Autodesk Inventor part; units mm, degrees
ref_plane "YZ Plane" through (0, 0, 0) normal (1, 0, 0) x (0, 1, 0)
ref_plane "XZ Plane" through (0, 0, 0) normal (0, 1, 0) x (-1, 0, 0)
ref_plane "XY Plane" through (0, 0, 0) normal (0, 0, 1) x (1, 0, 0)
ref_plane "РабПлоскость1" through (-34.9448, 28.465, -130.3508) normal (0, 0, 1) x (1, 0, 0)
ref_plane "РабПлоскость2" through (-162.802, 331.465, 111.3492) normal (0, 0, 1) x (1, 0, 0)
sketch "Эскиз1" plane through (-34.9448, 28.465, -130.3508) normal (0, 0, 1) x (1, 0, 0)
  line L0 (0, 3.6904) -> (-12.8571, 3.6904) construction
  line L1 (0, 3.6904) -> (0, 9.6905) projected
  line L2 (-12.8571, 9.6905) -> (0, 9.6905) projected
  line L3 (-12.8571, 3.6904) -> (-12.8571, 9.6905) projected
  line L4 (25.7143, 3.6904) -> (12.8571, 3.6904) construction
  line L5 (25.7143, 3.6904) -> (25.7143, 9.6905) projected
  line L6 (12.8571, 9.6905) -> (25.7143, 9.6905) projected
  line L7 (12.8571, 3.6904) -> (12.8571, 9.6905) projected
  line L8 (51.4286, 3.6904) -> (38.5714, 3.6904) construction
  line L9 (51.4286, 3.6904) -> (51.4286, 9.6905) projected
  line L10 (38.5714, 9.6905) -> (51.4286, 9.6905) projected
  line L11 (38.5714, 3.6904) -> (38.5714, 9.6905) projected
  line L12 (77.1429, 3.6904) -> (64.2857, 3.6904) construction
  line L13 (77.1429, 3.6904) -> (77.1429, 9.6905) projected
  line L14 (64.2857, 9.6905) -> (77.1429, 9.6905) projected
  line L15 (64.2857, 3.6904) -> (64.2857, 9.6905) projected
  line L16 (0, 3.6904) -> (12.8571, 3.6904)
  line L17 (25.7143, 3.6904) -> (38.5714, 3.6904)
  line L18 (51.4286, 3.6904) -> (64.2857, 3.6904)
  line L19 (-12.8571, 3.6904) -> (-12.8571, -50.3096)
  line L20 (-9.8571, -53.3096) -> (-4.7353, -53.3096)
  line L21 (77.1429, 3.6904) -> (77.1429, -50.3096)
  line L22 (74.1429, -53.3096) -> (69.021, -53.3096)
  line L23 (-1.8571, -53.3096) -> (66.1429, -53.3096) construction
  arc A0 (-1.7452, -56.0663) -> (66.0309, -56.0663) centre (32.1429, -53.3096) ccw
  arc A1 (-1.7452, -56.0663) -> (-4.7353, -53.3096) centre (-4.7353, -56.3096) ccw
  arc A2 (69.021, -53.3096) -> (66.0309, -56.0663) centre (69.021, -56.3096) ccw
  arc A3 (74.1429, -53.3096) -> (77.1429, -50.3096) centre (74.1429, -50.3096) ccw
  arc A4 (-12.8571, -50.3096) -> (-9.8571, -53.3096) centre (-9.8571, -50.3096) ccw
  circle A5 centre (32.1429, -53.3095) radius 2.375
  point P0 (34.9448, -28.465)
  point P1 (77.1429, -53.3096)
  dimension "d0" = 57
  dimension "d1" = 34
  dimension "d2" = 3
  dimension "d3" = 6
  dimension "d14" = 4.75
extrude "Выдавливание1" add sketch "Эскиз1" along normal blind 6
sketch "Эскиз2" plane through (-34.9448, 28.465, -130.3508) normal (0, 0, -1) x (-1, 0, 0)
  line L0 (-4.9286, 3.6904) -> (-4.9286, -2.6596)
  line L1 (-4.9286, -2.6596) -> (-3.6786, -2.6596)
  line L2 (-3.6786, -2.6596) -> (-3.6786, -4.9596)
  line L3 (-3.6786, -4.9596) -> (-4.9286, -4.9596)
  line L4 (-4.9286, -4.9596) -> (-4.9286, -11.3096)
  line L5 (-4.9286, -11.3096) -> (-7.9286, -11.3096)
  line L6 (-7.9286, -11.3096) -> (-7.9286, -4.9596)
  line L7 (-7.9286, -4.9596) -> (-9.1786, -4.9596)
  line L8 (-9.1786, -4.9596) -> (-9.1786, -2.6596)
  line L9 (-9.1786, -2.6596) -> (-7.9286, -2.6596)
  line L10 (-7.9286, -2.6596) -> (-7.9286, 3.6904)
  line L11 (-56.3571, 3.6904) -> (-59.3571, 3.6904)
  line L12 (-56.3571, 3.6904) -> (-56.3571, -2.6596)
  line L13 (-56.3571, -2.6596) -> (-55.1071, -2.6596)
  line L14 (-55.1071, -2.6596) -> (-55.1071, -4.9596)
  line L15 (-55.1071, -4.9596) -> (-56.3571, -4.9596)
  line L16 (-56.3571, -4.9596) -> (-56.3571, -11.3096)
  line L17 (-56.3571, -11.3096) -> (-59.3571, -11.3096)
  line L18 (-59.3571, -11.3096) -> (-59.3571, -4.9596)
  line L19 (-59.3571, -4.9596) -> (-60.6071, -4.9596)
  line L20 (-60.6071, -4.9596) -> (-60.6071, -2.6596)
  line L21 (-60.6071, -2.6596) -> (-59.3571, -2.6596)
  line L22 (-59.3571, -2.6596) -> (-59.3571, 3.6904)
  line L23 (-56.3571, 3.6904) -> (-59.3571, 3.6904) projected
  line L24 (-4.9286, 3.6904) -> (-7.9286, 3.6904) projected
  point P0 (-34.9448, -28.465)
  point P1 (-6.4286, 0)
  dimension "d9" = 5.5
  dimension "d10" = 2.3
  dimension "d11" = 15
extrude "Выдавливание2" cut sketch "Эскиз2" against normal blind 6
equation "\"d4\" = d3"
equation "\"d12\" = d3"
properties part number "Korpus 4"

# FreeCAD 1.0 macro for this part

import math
import FreeCAD as App
import Part
import Sketcher

V = App.Vector
Q = App.Units.Quantity


def add_polygon(sketch, points):
    """Adds a closed chain of lines whose ends are joined by coincident constraints."""
    first, n = sketch.GeometryCount, len(points)
    for a, b in zip(points, points[1:] + points[:1]):
        sketch.addGeometry(Part.LineSegment(App.Vector(*a, 0), App.Vector(*b, 0)), False)
    for i in range(n):
        sketch.addConstraint(Sketcher.Constraint("Coincident", first + i, 2, first + (i + 1) % n, 1))

doc = App.newDocument("Part")
body = doc.addObject("PartDesign::Body", "Body")

# Sketch on XY plane
sketch1 = body.newObject("Sketcher::SketchObject", "Sketch")
sketch1.AttachmentSupport = (doc.getObject("XY_Plane"), [""])
sketch1.MapMode = "FlatFace"
sketch1.AttachmentOffset = App.Placement(V(0, 0, -130.3508), App.Rotation())
sketch1.addGeometry([
    Part.LineSegment(V(-22.1, 32.2, 0), V(-34.9, 32.2, 0)),  # 0
    Part.LineSegment(V(-34.9, 32.2, 0), V(-34.9, 38.2, 0)),  # 1
    Part.LineSegment(V(-34.9, 38.2, 0), V(-47.8, 38.2, 0)),  # 2
    Part.LineSegment(V(-47.8, 38.2, 0), V(-47.8, -21.8, 0)),  # 3
    Part.ArcOfCircle(Part.Circle(V(-44.8, -21.8, 0), V(0, 0, 1), 3), math.radians(180), math.radians(270)),  # 4
    Part.LineSegment(V(-44.8, -24.8, 0), V(-39.7, -24.8, 0)),  # 5
    Part.ArcOfCircle(Part.Circle(V(-39.7, -27.8, 0), V(0, 0, 1), 3), math.radians(5), math.radians(90)),  # 6
    Part.ArcOfCircle(Part.Circle(V(-2.8, -24.8, 0), V(0, 0, 1), 34), math.radians(-175), math.radians(-5)),  # 7
    Part.ArcOfCircle(Part.Circle(V(34.1, -27.8, 0), V(0, 0, 1), 3), math.radians(90), math.radians(175)),  # 8
    Part.LineSegment(V(34.1, -24.8, 0), V(39.2, -24.8, 0)),  # 9
    Part.ArcOfCircle(Part.Circle(V(39.2, -21.8, 0), V(0, 0, 1), 3), math.radians(-90), math.radians(0)),  # 10
    Part.LineSegment(V(42.2, -21.8, 0), V(42.2, 38.2, 0)),  # 11
    Part.LineSegment(V(42.2, 38.2, 0), V(29.3, 38.2, 0)),  # 12
    Part.LineSegment(V(29.3, 38.2, 0), V(29.3, 32.2, 0)),  # 13
    Part.LineSegment(V(29.3, 32.2, 0), V(16.5, 32.2, 0)),  # 14
    Part.LineSegment(V(16.5, 32.2, 0), V(16.5, 38.2, 0)),  # 15
    Part.LineSegment(V(16.5, 38.2, 0), V(3.6, 38.2, 0)),  # 16
    Part.LineSegment(V(3.6, 38.2, 0), V(3.6, 32.2, 0)),  # 17
    Part.LineSegment(V(3.6, 32.2, 0), V(-9.2, 32.2, 0)),  # 18
    Part.LineSegment(V(-9.2, 32.2, 0), V(-9.2, 38.2, 0)),  # 19
    Part.LineSegment(V(-9.2, 38.2, 0), V(-22.1, 38.2, 0)),  # 20
    Part.LineSegment(V(-22.1, 38.2, 0), V(-22.1, 32.2, 0)),  # 21
    Part.Circle(V(-2.8, -24.8, 0), V(0, 0, 1), 2.4),  # 22
], False)
sketch1.addConstraint([
    Sketcher.Constraint("Coincident", 0, 2, 1, 1),
    Sketcher.Constraint("Coincident", 1, 2, 2, 1),
    Sketcher.Constraint("Coincident", 2, 2, 3, 1),
    Sketcher.Constraint("Tangent", 3, 2, 4, 1),
    Sketcher.Constraint("Tangent", 4, 2, 5, 1),
    Sketcher.Constraint("Tangent", 5, 2, 6, 2),
    Sketcher.Constraint("Tangent", 6, 1, 7, 1),
    Sketcher.Constraint("Tangent", 7, 2, 8, 2),
    Sketcher.Constraint("Tangent", 8, 1, 9, 1),
    Sketcher.Constraint("Tangent", 9, 2, 10, 1),
    Sketcher.Constraint("Tangent", 10, 2, 11, 1),
    Sketcher.Constraint("Coincident", 11, 2, 12, 1),
    Sketcher.Constraint("Coincident", 12, 2, 13, 1),
    Sketcher.Constraint("Coincident", 13, 2, 14, 1),
    Sketcher.Constraint("Coincident", 14, 2, 15, 1),
    Sketcher.Constraint("Coincident", 15, 2, 16, 1),
    Sketcher.Constraint("Coincident", 16, 2, 17, 1),
    Sketcher.Constraint("Coincident", 17, 2, 18, 1),
    Sketcher.Constraint("Coincident", 18, 2, 19, 1),
    Sketcher.Constraint("Coincident", 19, 2, 20, 1),
    Sketcher.Constraint("Coincident", 20, 2, 21, 1),
    Sketcher.Constraint("Coincident", 21, 2, 0, 1),
    Sketcher.Constraint("Horizontal", 0),
    Sketcher.Constraint("Vertical", 1),
    Sketcher.Constraint("Horizontal", 2),
    Sketcher.Constraint("Vertical", 3),
    Sketcher.Constraint("Horizontal", 5),
    Sketcher.Constraint("Horizontal", 9),
    Sketcher.Constraint("Vertical", 11),
    Sketcher.Constraint("Horizontal", 12),
    Sketcher.Constraint("Vertical", 13),
    Sketcher.Constraint("Horizontal", 14),
    Sketcher.Constraint("Vertical", 15),
    Sketcher.Constraint("Horizontal", 16),
    Sketcher.Constraint("Vertical", 17),
    Sketcher.Constraint("Horizontal", 18),
    Sketcher.Constraint("Vertical", 19),
    Sketcher.Constraint("Horizontal", 20),
    Sketcher.Constraint("Vertical", 21),
    Sketcher.Constraint("Coincident", 22, 3, 7, 3),
    Sketcher.Constraint("Equal", 4, 6),
    Sketcher.Constraint("Equal", 6, 8),
    Sketcher.Constraint("Equal", 8, 10),
    Sketcher.Constraint("Horizontal", 6, 3, 8, 3),
    Sketcher.Constraint("Horizontal", 22, 3, 4, 2),
    Sketcher.Constraint("Horizontal", 2, 2, 11, 2),
    Sketcher.Constraint("Horizontal", 0, 2, 13, 2),
    Sketcher.Constraint("Horizontal", 12, 2, 15, 2),
    Sketcher.Constraint("Horizontal", 14, 2, 17, 2),
    Sketcher.Constraint("Horizontal", 16, 2, 19, 2),
    Sketcher.Constraint("Equal", 0, 2),
    Sketcher.Constraint("Equal", 5, 9),
    Sketcher.Constraint("Equal", 2, 12),
    Sketcher.Constraint("Equal", 12, 14),
    Sketcher.Constraint("Equal", 14, 16),
    Sketcher.Constraint("Equal", 16, 18),
    Sketcher.Constraint("Equal", 18, 20),
    Sketcher.Constraint("Radius", 4, Q("3 mm")),
    Sketcher.Constraint("Radius", 7, Q("34 mm")),
    Sketcher.Constraint("Diameter", 22, Q("4.75 mm")),
    Sketcher.Constraint("DistanceY", 1, 1, 1, 2, Q("6 mm")),
    Sketcher.Constraint("DistanceY", 22, 3, 0, 2, Q("57 mm")),
    Sketcher.Constraint("DistanceX", 4, 3, 7, 3, Q("42 mm")),
    Sketcher.Constraint("DistanceX", 6, 3, -1, 1, Q("39.68 mm")),
    Sketcher.Constraint("DistanceY", 4, 3, -1, 1, Q("21.8446 mm")),
])
pad1 = body.newObject("PartDesign::Pad", "Pad")
pad1.Profile = sketch1
pad1.Length = 6

# Sketch on XY plane
sketch2 = body.newObject("Sketcher::SketchObject", "Sketch001")
sketch2.AttachmentSupport = (doc.getObject("XY_Plane"), [""])
sketch2.MapMode = "FlatFace"
sketch2.AttachmentOffset = App.Placement(V(0, 0, -130.3508), App.Rotation())
add_polygon(sketch2, [(-30, 25.8), (-30, 32.2), (-27, 32.2), (-27, 25.8), (-25.8, 25.8), (-25.8, 23.5), (-27, 23.5), (-27, 17.2), (-30, 17.2), (-30, 23.5), (-31.3, 23.5), (-31.3, 25.8)])  # lines 0-11
add_polygon(sketch2, [(21.4, 25.8), (21.4, 32.2), (24.4, 32.2), (24.4, 25.8), (25.7, 25.8), (25.7, 23.5), (24.4, 23.5), (24.4, 17.2), (21.4, 17.2), (21.4, 23.5), (20.2, 23.5), (20.2, 25.8)])  # lines 12-23
sketch2.addConstraint([
    Sketcher.Constraint("Vertical", 0),
    Sketcher.Constraint("Horizontal", 1),
    Sketcher.Constraint("Vertical", 2),
    Sketcher.Constraint("Horizontal", 3),
    Sketcher.Constraint("Vertical", 4),
    Sketcher.Constraint("Horizontal", 5),
    Sketcher.Constraint("Vertical", 6),
    Sketcher.Constraint("Horizontal", 7),
    Sketcher.Constraint("Vertical", 8),
    Sketcher.Constraint("Horizontal", 9),
    Sketcher.Constraint("Vertical", 10),
    Sketcher.Constraint("Horizontal", 11),
    Sketcher.Constraint("Vertical", 12),
    Sketcher.Constraint("Horizontal", 13),
    Sketcher.Constraint("Vertical", 14),
    Sketcher.Constraint("Horizontal", 15),
    Sketcher.Constraint("Vertical", 16),
    Sketcher.Constraint("Horizontal", 17),
    Sketcher.Constraint("Vertical", 18),
    Sketcher.Constraint("Horizontal", 19),
    Sketcher.Constraint("Vertical", 20),
    Sketcher.Constraint("Horizontal", 21),
    Sketcher.Constraint("Vertical", 22),
    Sketcher.Constraint("Horizontal", 23),
    Sketcher.Constraint("Horizontal", 5, 2, 8, 2),
    Sketcher.Constraint("Horizontal", 3, 2, 10, 2),
    Sketcher.Constraint("Horizontal", 1, 2, 12, 2),
    Sketcher.Constraint("Horizontal", 11, 2, 14, 2),
    Sketcher.Constraint("Horizontal", 9, 2, 16, 2),
    Sketcher.Constraint("Horizontal", 7, 2, 18, 2),
    Sketcher.Constraint("Horizontal", 17, 2, 20, 2),
    Sketcher.Constraint("Horizontal", 15, 2, 22, 2),
    Sketcher.Constraint("Vertical", 2, 2, 5, 2),
    Sketcher.Constraint("Vertical", 0, 2, 7, 2),
    Sketcher.Constraint("Vertical", 14, 2, 17, 2),
    Sketcher.Constraint("Vertical", 12, 2, 19, 2),
    Sketcher.Constraint("Equal", 5, 9),
    Sketcher.Constraint("Equal", 7, 13),
    Sketcher.Constraint("Equal", 11, 15),
    Sketcher.Constraint("Equal", 17, 21),
    Sketcher.Constraint("Equal", 2, 6),
    Sketcher.Constraint("DistanceY", 4, 2, 4, 1, Q("2.3 mm")),
    Sketcher.Constraint("DistanceY", 6, 2, 1, 2, Q("15 mm")),
    Sketcher.Constraint("DistanceX", 9, 2, 4, 2, Q("5.5 mm")),
    Sketcher.Constraint("DistanceX", 1, 1, 1, 2, Q("3 mm")),
    Sketcher.Constraint("DistanceX", 0, 2, -1, 1, Q("30.0162 mm")),
    Sketcher.Constraint("DistanceY", -1, 1, 0, 2, Q("32.1554 mm")),
    Sketcher.Constraint("DistanceX", -1, 1, 12, 2, Q("21.4123 mm")),
])
pocket1 = body.newObject("PartDesign::Pocket", "Pocket")
pocket1.Profile = sketch2
pocket1.Length = 6
pocket1.Reversed = True

doc.recompute()
